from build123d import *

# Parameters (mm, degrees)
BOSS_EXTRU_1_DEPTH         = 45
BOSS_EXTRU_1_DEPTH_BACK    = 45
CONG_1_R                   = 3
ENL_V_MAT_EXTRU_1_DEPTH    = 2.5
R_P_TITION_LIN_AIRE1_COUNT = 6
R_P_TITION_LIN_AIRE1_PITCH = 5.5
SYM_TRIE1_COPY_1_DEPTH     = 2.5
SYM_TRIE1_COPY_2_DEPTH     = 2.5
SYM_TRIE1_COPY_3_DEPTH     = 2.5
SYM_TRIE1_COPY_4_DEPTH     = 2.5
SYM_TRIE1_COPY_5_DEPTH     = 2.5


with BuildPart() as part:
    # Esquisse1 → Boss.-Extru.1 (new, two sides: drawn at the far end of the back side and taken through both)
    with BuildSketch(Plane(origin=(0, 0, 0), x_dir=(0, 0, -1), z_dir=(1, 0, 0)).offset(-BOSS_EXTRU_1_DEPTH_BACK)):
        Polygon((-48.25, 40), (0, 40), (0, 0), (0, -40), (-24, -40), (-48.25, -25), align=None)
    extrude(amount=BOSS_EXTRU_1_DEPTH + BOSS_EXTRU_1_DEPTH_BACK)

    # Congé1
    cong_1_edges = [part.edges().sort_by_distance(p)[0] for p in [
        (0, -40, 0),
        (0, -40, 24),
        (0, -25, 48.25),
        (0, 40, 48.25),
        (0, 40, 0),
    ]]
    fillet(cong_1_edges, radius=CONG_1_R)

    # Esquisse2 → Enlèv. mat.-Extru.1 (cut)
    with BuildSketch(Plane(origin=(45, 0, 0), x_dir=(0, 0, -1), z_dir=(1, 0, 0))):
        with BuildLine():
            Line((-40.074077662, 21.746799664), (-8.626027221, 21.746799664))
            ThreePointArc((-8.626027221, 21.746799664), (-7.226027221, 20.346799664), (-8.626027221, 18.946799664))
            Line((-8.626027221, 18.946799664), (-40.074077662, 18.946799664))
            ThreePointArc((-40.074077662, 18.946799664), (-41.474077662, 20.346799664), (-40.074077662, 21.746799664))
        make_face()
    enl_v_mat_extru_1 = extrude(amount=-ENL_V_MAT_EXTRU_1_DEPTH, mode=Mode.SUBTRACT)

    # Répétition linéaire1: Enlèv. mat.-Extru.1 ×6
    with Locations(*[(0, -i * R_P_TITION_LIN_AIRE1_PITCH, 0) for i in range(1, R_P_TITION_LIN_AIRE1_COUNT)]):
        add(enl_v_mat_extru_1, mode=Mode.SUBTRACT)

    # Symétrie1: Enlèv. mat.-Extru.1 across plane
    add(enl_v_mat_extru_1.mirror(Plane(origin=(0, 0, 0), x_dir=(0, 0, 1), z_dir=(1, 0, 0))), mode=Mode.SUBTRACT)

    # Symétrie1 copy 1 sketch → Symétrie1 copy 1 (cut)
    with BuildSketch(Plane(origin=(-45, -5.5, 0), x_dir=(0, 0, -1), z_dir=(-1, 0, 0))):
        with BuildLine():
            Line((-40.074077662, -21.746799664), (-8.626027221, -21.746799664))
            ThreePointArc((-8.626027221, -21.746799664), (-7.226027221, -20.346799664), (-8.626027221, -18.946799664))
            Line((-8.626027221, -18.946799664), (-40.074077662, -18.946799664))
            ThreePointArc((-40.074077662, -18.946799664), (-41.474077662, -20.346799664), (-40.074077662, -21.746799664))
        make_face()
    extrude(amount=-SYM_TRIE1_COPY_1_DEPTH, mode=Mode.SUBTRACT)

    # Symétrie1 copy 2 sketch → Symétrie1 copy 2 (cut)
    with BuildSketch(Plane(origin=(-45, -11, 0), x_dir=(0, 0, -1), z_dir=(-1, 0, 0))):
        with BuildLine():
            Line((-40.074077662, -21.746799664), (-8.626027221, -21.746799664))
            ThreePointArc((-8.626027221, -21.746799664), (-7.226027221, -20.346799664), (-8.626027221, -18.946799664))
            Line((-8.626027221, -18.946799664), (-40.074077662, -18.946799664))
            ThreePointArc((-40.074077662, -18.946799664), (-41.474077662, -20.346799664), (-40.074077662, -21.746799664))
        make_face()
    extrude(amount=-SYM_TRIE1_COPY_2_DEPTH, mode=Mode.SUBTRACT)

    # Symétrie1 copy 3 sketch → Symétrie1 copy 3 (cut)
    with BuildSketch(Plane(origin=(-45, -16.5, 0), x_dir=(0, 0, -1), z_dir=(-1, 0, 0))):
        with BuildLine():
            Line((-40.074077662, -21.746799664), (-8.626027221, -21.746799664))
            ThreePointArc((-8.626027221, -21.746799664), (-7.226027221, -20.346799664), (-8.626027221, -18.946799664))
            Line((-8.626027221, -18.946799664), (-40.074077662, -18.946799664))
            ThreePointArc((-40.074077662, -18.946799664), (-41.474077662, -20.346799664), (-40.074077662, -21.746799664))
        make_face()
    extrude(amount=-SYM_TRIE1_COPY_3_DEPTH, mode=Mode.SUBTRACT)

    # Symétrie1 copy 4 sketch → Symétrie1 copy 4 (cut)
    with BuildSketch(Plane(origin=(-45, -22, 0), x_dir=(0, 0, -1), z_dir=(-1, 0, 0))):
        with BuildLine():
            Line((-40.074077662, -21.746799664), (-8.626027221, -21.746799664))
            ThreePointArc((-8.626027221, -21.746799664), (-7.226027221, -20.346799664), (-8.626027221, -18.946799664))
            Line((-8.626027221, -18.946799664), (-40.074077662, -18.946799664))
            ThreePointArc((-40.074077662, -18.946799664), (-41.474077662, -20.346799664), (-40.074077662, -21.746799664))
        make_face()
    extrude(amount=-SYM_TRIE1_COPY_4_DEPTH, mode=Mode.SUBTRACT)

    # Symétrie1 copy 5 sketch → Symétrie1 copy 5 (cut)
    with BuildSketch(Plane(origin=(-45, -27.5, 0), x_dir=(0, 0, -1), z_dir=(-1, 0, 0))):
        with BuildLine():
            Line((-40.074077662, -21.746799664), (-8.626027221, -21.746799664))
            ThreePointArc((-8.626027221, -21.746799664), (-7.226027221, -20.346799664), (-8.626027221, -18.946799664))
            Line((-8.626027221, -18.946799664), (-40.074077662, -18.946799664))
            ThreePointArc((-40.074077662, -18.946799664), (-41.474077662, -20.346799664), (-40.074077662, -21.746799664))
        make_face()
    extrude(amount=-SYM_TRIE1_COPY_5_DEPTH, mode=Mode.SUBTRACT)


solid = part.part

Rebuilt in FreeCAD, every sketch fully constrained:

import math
import FreeCAD as App
import Part
import Sketcher
from FreeCAD import Vector


def edges_at(feature, points):
    """Names of the edges that pass closest to the given points."""
    edges = feature.Shape.Edges
    near = lambda p: min(range(len(edges)), key=lambda i: edges[i].distToShape(Part.Vertex(*p))[0])
    return sorted({f"Edge{near(p) + 1}" for p in points})


def add_polygon(sketch, points):
    """Adds a closed chain of lines whose ends are joined by coincident constraints."""
    first, n = sketch.GeometryCount, len(points)
    for a, b in zip(points, points[1:] + points[:1]):
        sketch.addGeometry(Part.LineSegment(App.Vector(*a, 0), App.Vector(*b, 0)), False)
    for i in range(n):
        sketch.addConstraint(Sketcher.Constraint("Coincident", first + i, 2, first + (i + 1) % n, 1))

doc = App.newDocument("Part")
body = doc.addObject("PartDesign::Body", "Body")

sketch1 = body.newObject("Sketcher::SketchObject", "Sketch")
sketch1.AttachmentSupport = (doc.getObject("YZ_Plane"), [""])
sketch1.MapMode = "FlatFace"
add_polygon(sketch1, [(40, 0), (40, 48), (-25, 48), (-40, 24), (-40, 0)])
sketch1.addConstraint([
    Sketcher.Constraint("Vertical", 0),
    Sketcher.Constraint("Horizontal", 1),
    Sketcher.Constraint("Vertical", 3),
    Sketcher.Constraint("Horizontal", 4),
    Sketcher.Constraint("Symmetric", 3, 2, 4, 2, -1, 1),
    Sketcher.Constraint("DistanceX", 1, 2, 1, 1, 65.0),
    Sketcher.Constraint("DistanceX", 4, 1, 4, 2, 80.0),
    Sketcher.Constraint("DistanceY", 3, 2, 3, 1, 24.0),
    Sketcher.Constraint("DistanceY", 0, 1, 0, 2, 48.25),
])
pad1 = body.newObject("PartDesign::Pad", "Pad")
pad1.Profile = sketch1
pad1.Type = "TwoLengths"
pad1.Length = 45
pad1.Length2 = 45
doc.recompute()

fillet = body.newObject("PartDesign::Fillet", "Fillet")
fillet.Base = (pad1, edges_at(pad1, [
    (0, -40, 0),
    (0, -40, 24),
    (0, -25, 48.25),
    (0, 40, 48.25),
    (0, 40, 0),
]))
fillet.Radius = 3

sketch2 = body.newObject("Sketcher::SketchObject", "Sketch001")
sketch2.AttachmentSupport = (doc.getObject("YZ_Plane"), [""])
sketch2.MapMode = "FlatFace"
sketch2.AttachmentOffset = App.Placement(Vector(0, 0, 45), App.Rotation())
sketch2.addGeometry([
    Part.LineSegment(Vector(21.7, 8.6, 0), Vector(21.7, 40.1, 0)),
    Part.ArcOfCircle(Part.Circle(Vector(20.3, 40.1, 0), Vector(0, 0, 1), 1.4), math.radians(0), math.radians(180)),
    Part.LineSegment(Vector(18.9, 40.1, 0), Vector(18.9, 8.6, 0)),
    Part.ArcOfCircle(Part.Circle(Vector(20.3, 8.6, 0), Vector(0, 0, 1), 1.4), math.radians(180), math.radians(360)),
], False)
sketch2.addConstraint([
    Sketcher.Constraint("Tangent", 0, 2, 1, 1),
    Sketcher.Constraint("Tangent", 1, 2, 2, 1),
    Sketcher.Constraint("Tangent", 2, 2, 3, 1),
    Sketcher.Constraint("Tangent", 3, 2, 0, 1),
    Sketcher.Constraint("Vertical", 0),
    Sketcher.Constraint("Vertical", 2),
    Sketcher.Constraint("Radius", 1, 1.4),
    Sketcher.Constraint("DistanceY", 0, 1, 0, 2, 31.44805),
    Sketcher.Constraint("DistanceX", -1, 1, 1, 3, 20.3468),
    Sketcher.Constraint("DistanceY", -1, 1, 1, 3, 40.074078),
])
pocket1 = body.newObject("PartDesign::Pocket", "Pocket")
pocket1.Profile = sketch2
pocket1.Length = 2.5
doc.recompute()

linearpattern = body.newObject("PartDesign::LinearPattern", "LinearPattern")
linearpattern.Originals = [pocket1]
linearpattern.Direction = (doc.getObject("Y_Axis"), [""])
linearpattern.Mode = "offset"
linearpattern.Offset = 5.5
linearpattern.Occurrences = 6
linearpattern.Reversed = True
body.Tip = linearpattern
doc.recompute()

mirrored = body.newObject("PartDesign::Mirrored", "Mirrored")
mirrored.Originals = [pocket1]
mirrored.MirrorPlane = (doc.getObject("YZ_Plane"), [""])
body.Tip = mirrored

sketch3 = body.newObject("Sketcher::SketchObject", "Sketch002")
sketch3.AttachmentSupport = (doc.getObject("YZ_Plane"), [""])
sketch3.MapMode = "FlatFace"
sketch3.AttachmentOffset = App.Placement(Vector(0, 0, -45), App.Rotation())
sketch3.addGeometry([
    Part.LineSegment(Vector(16.2, 40.1, 0), Vector(16.2, 8.6, 0)),
    Part.ArcOfCircle(Part.Circle(Vector(14.8, 8.6, 0), Vector(0, 0, 1), 1.4), math.radians(180), math.radians(360)),
    Part.LineSegment(Vector(13.4, 8.6, 0), Vector(13.4, 40.1, 0)),
    Part.ArcOfCircle(Part.Circle(Vector(14.8, 40.1, 0), Vector(0, 0, 1), 1.4), math.radians(0), math.radians(180)),
], False)
sketch3.addConstraint([
    Sketcher.Constraint("Tangent", 0, 2, 1, 2),
    Sketcher.Constraint("Tangent", 1, 1, 2, 1),
    Sketcher.Constraint("Tangent", 2, 2, 3, 2),
    Sketcher.Constraint("Tangent", 3, 1, 0, 1),
    Sketcher.Constraint("Vertical", 0),
    Sketcher.Constraint("Vertical", 2),
    Sketcher.Constraint("Radius", 1, 1.4),
    Sketcher.Constraint("DistanceY", 0, 2, 0, 1, 31.44805),
    Sketcher.Constraint("DistanceX", -1, 1, 1, 3, 14.8468),
    Sketcher.Constraint("DistanceY", -1, 1, 1, 3, 8.626027),
])
pocket2 = body.newObject("PartDesign::Pocket", "Pocket001")
pocket2.Profile = sketch3
pocket2.Length = 2.5
pocket2.Reversed = True

sketch4 = body.newObject("Sketcher::SketchObject", "Sketch003")
sketch4.AttachmentSupport = (doc.getObject("YZ_Plane"), [""])
sketch4.MapMode = "FlatFace"
sketch4.AttachmentOffset = App.Placement(Vector(0, 0, -45), App.Rotation())
sketch4.addGeometry([
    Part.LineSegment(Vector(10.7, 40.1, 0), Vector(10.7, 8.6, 0)),
    Part.ArcOfCircle(Part.Circle(Vector(9.3, 8.6, 0), Vector(0, 0, 1), 1.4), math.radians(180), math.radians(360)),
    Part.LineSegment(Vector(7.9, 8.6, 0), Vector(7.9, 40.1, 0)),
    Part.ArcOfCircle(Part.Circle(Vector(9.3, 40.1, 0), Vector(0, 0, 1), 1.4), math.radians(0), math.radians(180)),
], False)
sketch4.addConstraint([
    Sketcher.Constraint("Tangent", 0, 2, 1, 2),
    Sketcher.Constraint("Tangent", 1, 1, 2, 1),
    Sketcher.Constraint("Tangent", 2, 2, 3, 2),
    Sketcher.Constraint("Tangent", 3, 1, 0, 1),
    Sketcher.Constraint("Vertical", 0),
    Sketcher.Constraint("Vertical", 2),
    Sketcher.Constraint("Radius", 1, 1.4),
    Sketcher.Constraint("DistanceY", 0, 2, 0, 1, 31.44805),
    Sketcher.Constraint("DistanceX", -1, 1, 1, 3, 9.3468),
    Sketcher.Constraint("DistanceY", -1, 1, 1, 3, 8.626027),
])
pocket3 = body.newObject("PartDesign::Pocket", "Pocket002")
pocket3.Profile = sketch4
pocket3.Length = 2.5
pocket3.Reversed = True

sketch5 = body.newObject("Sketcher::SketchObject", "Sketch004")
sketch5.AttachmentSupport = (doc.getObject("YZ_Plane"), [""])
sketch5.MapMode = "FlatFace"
sketch5.AttachmentOffset = App.Placement(Vector(0, 0, -45), App.Rotation())
sketch5.addGeometry([
    Part.LineSegment(Vector(5.2, 40.1, 0), Vector(5.2, 8.6, 0)),
    Part.ArcOfCircle(Part.Circle(Vector(3.8, 8.6, 0), Vector(0, 0, 1), 1.4), math.radians(180), math.radians(360)),
    Part.LineSegment(Vector(2.4, 8.6, 0), Vector(2.4, 40.1, 0)),
    Part.ArcOfCircle(Part.Circle(Vector(3.8, 40.1, 0), Vector(0, 0, 1), 1.4), math.radians(0), math.radians(180)),
], False)
sketch5.addConstraint([
    Sketcher.Constraint("Tangent", 0, 2, 1, 2),
    Sketcher.Constraint("Tangent", 1, 1, 2, 1),
    Sketcher.Constraint("Tangent", 2, 2, 3, 2),
    Sketcher.Constraint("Tangent", 3, 1, 0, 1),
    Sketcher.Constraint("Vertical", 0),
    Sketcher.Constraint("Vertical", 2),
    Sketcher.Constraint("Radius", 1, 1.4),
    Sketcher.Constraint("DistanceY", 0, 2, 0, 1, 31.44805),
    Sketcher.Constraint("DistanceX", -1, 1, 1, 3, 3.8468),
    Sketcher.Constraint("DistanceY", -1, 1, 1, 3, 8.626027),
])
pocket4 = body.newObject("PartDesign::Pocket", "Pocket003")
pocket4.Profile = sketch5
pocket4.Length = 2.5
pocket4.Reversed = True

sketch6 = body.newObject("Sketcher::SketchObject", "Sketch005")
sketch6.AttachmentSupport = (doc.getObject("YZ_Plane"), [""])
sketch6.MapMode = "FlatFace"
sketch6.AttachmentOffset = App.Placement(Vector(0, 0, -45), App.Rotation())
sketch6.addGeometry([
    Part.LineSegment(Vector(-0.3, 40.1, 0), Vector(-0.3, 8.6, 0)),
    Part.ArcOfCircle(Part.Circle(Vector(-1.7, 8.6, 0), Vector(0, 0, 1), 1.4), math.radians(180), math.radians(360)),
    Part.LineSegment(Vector(-3.1, 8.6, 0), Vector(-3.1, 40.1, 0)),
    Part.ArcOfCircle(Part.Circle(Vector(-1.7, 40.1, 0), Vector(0, 0, 1), 1.4), math.radians(0), math.radians(180)),
], False)
sketch6.addConstraint([
    Sketcher.Constraint("Tangent", 0, 2, 1, 2),
    Sketcher.Constraint("Tangent", 1, 1, 2, 1),
    Sketcher.Constraint("Tangent", 2, 2, 3, 2),
    Sketcher.Constraint("Tangent", 3, 1, 0, 1),
    Sketcher.Constraint("Vertical", 0),
    Sketcher.Constraint("Vertical", 2),
    Sketcher.Constraint("Radius", 1, 1.4),
    Sketcher.Constraint("DistanceY", 0, 2, 0, 1, 31.44805),
    Sketcher.Constraint("DistanceX", 1, 3, -1, 1, 1.6532),
    Sketcher.Constraint("DistanceY", -1, 1, 1, 3, 8.626027),
])
pocket5 = body.newObject("PartDesign::Pocket", "Pocket004")
pocket5.Profile = sketch6
pocket5.Length = 2.5
pocket5.Reversed = True

sketch7 = body.newObject("Sketcher::SketchObject", "Sketch006")
sketch7.AttachmentSupport = (doc.getObject("YZ_Plane"), [""])
sketch7.MapMode = "FlatFace"
sketch7.AttachmentOffset = App.Placement(Vector(0, 0, -45), App.Rotation())
sketch7.addGeometry([
    Part.LineSegment(Vector(-5.8, 40.1, 0), Vector(-5.8, 8.6, 0)),
    Part.ArcOfCircle(Part.Circle(Vector(-7.2, 8.6, 0), Vector(0, 0, 1), 1.4), math.radians(180), math.radians(360)),
    Part.LineSegment(Vector(-8.6, 8.6, 0), Vector(-8.6, 40.1, 0)),
    Part.ArcOfCircle(Part.Circle(Vector(-7.2, 40.1, 0), Vector(0, 0, 1), 1.4), math.radians(0), math.radians(180)),
], False)
sketch7.addConstraint([
    Sketcher.Constraint("Tangent", 0, 2, 1, 2),
    Sketcher.Constraint("Tangent", 1, 1, 2, 1),
    Sketcher.Constraint("Tangent", 2, 2, 3, 2),
    Sketcher.Constraint("Tangent", 3, 1, 0, 1),
    Sketcher.Constraint("Vertical", 0),
    Sketcher.Constraint("Vertical", 2),
    Sketcher.Constraint("Radius", 1, 1.4),
    Sketcher.Constraint("DistanceY", 0, 2, 0, 1, 31.44805),
    Sketcher.Constraint("DistanceX", 1, 3, -1, 1, 7.1532),
    Sketcher.Constraint("DistanceY", -1, 1, 1, 3, 8.626027),
])
pocket6 = body.newObject("PartDesign::Pocket", "Pocket005")
pocket6.Profile = sketch7
pocket6.Length = 2.5
pocket6.Reversed = True

doc.recompute()
